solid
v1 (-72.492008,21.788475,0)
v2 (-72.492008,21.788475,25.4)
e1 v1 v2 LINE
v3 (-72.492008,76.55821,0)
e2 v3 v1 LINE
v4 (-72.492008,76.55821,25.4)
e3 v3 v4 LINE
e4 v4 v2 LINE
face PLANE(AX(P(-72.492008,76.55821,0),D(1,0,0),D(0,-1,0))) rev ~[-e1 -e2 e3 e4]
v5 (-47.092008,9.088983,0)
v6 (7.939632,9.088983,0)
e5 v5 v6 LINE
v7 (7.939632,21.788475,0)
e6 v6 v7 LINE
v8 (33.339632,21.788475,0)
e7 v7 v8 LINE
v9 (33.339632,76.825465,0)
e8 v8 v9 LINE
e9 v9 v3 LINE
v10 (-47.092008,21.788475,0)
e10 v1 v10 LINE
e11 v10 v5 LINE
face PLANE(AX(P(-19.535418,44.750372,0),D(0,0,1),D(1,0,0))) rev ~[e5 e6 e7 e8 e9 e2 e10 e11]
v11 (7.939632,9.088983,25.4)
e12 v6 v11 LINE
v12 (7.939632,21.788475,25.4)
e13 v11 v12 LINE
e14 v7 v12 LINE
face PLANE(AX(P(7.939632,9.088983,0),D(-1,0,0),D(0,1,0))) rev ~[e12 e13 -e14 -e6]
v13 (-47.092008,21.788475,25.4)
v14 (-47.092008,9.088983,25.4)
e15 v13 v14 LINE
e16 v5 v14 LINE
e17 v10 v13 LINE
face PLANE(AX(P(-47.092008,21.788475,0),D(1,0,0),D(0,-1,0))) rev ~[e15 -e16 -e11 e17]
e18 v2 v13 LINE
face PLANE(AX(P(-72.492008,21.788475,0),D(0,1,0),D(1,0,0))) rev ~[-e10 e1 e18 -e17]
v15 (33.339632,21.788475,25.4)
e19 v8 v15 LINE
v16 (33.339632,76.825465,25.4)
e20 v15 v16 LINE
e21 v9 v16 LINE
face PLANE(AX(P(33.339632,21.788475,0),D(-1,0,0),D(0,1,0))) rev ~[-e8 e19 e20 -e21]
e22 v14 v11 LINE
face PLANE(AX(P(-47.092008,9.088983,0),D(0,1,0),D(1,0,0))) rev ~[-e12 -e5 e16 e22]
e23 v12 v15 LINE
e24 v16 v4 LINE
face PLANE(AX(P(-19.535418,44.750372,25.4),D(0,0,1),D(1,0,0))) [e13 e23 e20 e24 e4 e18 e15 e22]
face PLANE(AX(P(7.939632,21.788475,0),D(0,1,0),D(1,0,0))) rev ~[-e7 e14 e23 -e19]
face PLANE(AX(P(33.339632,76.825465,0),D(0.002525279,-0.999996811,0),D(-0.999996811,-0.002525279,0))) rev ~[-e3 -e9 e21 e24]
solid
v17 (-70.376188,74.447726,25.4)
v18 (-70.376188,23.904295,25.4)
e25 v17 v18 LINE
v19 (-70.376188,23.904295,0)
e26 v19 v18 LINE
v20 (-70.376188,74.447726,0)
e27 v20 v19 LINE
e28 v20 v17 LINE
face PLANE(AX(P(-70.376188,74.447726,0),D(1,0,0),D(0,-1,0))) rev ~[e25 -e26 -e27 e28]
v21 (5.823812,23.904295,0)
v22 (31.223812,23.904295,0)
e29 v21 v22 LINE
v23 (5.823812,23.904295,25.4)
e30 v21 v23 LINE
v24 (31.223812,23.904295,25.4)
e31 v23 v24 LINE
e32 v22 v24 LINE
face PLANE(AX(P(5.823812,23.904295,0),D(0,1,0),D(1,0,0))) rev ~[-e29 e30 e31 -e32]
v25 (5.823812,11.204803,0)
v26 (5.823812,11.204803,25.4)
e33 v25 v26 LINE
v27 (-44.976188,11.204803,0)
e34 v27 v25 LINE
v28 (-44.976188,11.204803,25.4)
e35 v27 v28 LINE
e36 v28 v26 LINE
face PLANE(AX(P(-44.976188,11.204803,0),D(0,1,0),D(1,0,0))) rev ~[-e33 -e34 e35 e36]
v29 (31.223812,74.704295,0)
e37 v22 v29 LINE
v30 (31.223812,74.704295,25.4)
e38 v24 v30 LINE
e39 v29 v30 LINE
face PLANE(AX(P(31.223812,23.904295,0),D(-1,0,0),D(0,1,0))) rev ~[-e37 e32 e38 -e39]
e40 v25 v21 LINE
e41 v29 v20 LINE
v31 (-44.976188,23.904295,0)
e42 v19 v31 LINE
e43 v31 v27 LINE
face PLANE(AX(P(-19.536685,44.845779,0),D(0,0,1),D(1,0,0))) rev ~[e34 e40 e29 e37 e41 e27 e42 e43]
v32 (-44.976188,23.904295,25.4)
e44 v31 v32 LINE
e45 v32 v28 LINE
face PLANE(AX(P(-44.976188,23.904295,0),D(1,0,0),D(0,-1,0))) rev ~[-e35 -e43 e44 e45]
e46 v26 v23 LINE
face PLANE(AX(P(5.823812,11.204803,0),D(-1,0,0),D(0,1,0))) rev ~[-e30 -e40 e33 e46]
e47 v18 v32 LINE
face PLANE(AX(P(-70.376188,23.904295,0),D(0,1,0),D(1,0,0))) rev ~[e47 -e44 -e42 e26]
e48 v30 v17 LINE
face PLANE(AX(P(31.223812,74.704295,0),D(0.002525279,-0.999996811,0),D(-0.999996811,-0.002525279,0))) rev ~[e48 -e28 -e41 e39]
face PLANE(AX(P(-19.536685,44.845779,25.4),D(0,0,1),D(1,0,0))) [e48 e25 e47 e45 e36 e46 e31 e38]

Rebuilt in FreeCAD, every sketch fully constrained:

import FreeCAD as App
import Part
import Sketcher
Q = App.Units.Quantity


def add_polygon(sketch, points):
    """Adds a closed chain of lines whose ends are joined by coincident constraints."""
    first, n = sketch.GeometryCount, len(points)
    for a, b in zip(points, points[1:] + points[:1]):
        sketch.addGeometry(Part.LineSegment(App.Vector(*a, 0), App.Vector(*b, 0)), False)
    for i in range(n):
        sketch.addConstraint(Sketcher.Constraint("Coincident", first + i, 2, first + (i + 1) % n, 1))

doc = App.newDocument("Part")
params = doc.addObject("Spreadsheet::Sheet", "Params")
for row, (alias, value) in enumerate([
    ("sketch1_width", "1 in"),
    ("pad1_length", "1 in"),
    ("sketch2_width", "1 in"),
    ("sketch2_width2", "2 in"),
    ("pad2_length", "1 in"),
], start=1):
    params.set(f"A{row}", alias)
    params.set(f"B{row}", "=" + value)
    params.setAlias(f"B{row}", alias)

body = doc.addObject("PartDesign::Body", "Body")

# Sketch on XY plane
sketch1 = body.newObject("Sketcher::SketchObject", "Sketch")
sketch1.AttachmentSupport = (doc.getObject("XY_Plane"), [""])
sketch1.MapMode = "FlatFace"
add_polygon(sketch1, [(7.939632, 21.788475), (33.339632, 21.788475), (33.339632, 76.825465), (-72.492008, 76.55821), (-72.492008, 21.788475), (-47.092008, 21.788475), (-47.092008, 9.088983), (7.939632, 9.088983)])  # lines 0-7
sketch1.addConstraint([
    Sketcher.Constraint("Horizontal", 0),
    Sketcher.Constraint("Vertical", 1),
    Sketcher.Constraint("Vertical", 3),
    Sketcher.Constraint("Horizontal", 4),
    Sketcher.Constraint("Vertical", 5),
    Sketcher.Constraint("Horizontal", 6),
    Sketcher.Constraint("Vertical", 7),
    Sketcher.Constraint("Horizontal", 0, 2, 3, 2),
    Sketcher.Constraint("Equal", 0, 4),
    Sketcher.Constraint("DistanceX", 0, 1, 0, 2, Q("1 in")),
    Sketcher.Constraint("DistanceX", 6, 1, 6, 2, Q("2.1666 in")),
    Sketcher.Constraint("DistanceY", 1, 1, 1, 2, Q("55.03699 mm")),
    Sketcher.Constraint("DistanceY", 5, 2, 5, 1, Q("12.699492 mm")),
    Sketcher.Constraint("DistanceY", 3, 2, 3, 1, Q("54.769735 mm")),
    Sketcher.Constraint("DistanceX", -1, 1, 0, 2, Q("33.339632 mm")),
    Sketcher.Constraint("DistanceY", -1, 1, 2, 2, Q("76.55821 mm")),
])
sketch1.setExpression("Constraints[17]", "Params.sketch1_width")
pad1 = body.newObject("PartDesign::Pad", "Pad")
pad1.Profile = sketch1
pad1.setExpression("Length", "Params.pad1_length")
body2 = doc.addObject("PartDesign::Body", "Body001")

# Sketch on XY plane
sketch2 = body2.newObject("Sketcher::SketchObject", "Sketch001")
sketch2.AttachmentSupport = (doc.getObject("XY_Plane001"), [""])
sketch2.MapMode = "FlatFace"
add_polygon(sketch2, [(31.223812, 74.704295), (-70.376188, 74.447726), (-70.376188, 23.904295), (-44.976188, 23.904295), (-44.976188, 11.204803), (5.823812, 11.204803), (5.823812, 23.904295), (31.223812, 23.904295)])  # lines 0-7
sketch2.addConstraint([
    Sketcher.Constraint("Vertical", 1),
    Sketcher.Constraint("Horizontal", 2),
    Sketcher.Constraint("Vertical", 3),
    Sketcher.Constraint("Horizontal", 4),
    Sketcher.Constraint("Vertical", 5),
    Sketcher.Constraint("Horizontal", 6),
    Sketcher.Constraint("Vertical", 7),
    Sketcher.Constraint("Horizontal", 2, 2, 5, 2),
    Sketcher.Constraint("Equal", 2, 6),
    Sketcher.Constraint("Equal", 4, 7),
    Sketcher.Constraint("DistanceX", 2, 1, 2, 2, Q("1 in")),
    Sketcher.Constraint("DistanceX", 4, 1, 4, 2, Q("2 in")),
    Sketcher.Constraint("DistanceY", 1, 2, 1, 1, Q("50.543431 mm")),
    Sketcher.Constraint("DistanceY", 3, 2, 3, 1, Q("12.699492 mm")),
    Sketcher.Constraint("DistanceX", 0, 2, -1, 1, Q("70.376188 mm")),
    Sketcher.Constraint("DistanceY", -1, 1, 0, 2, Q("74.447726 mm")),
])
sketch2.setExpression("Constraints[18]", "Params.sketch2_width")
sketch2.setExpression("Constraints[19]", "Params.sketch2_width2")
pad2 = body2.newObject("PartDesign::Pad", "Pad001")
pad2.Profile = sketch2
pad2.setExpression("Length", "Params.pad2_length")

doc.recompute()
